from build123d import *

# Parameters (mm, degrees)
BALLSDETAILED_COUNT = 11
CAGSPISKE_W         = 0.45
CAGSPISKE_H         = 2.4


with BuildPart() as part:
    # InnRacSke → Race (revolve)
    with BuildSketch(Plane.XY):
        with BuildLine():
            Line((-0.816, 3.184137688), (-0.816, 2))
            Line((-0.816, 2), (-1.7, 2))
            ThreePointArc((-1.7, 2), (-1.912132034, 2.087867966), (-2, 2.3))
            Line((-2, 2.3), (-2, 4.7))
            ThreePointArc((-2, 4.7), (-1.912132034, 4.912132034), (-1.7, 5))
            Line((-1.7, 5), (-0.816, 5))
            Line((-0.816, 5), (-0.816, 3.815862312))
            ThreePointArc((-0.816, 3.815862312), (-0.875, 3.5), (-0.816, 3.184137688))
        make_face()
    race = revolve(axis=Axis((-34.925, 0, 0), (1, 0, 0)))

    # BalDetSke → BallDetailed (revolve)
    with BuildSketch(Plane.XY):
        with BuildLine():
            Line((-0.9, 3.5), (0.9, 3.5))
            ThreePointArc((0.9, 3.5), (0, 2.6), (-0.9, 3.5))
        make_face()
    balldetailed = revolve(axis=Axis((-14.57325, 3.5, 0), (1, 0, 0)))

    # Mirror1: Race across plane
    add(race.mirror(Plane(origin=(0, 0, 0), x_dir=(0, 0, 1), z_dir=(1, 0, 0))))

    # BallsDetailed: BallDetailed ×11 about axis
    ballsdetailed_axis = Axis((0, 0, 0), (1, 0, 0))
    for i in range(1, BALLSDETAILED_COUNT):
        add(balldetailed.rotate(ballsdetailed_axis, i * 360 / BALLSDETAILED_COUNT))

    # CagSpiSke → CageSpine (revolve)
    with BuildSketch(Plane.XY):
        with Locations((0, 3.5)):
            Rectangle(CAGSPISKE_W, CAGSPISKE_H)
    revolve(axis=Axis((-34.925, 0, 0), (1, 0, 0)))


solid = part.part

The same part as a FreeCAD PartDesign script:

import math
import FreeCAD as App
import Part
import Sketcher

V = App.Vector
Q = App.Units.Quantity


def add_polygon(sketch, points):
    """Adds a closed chain of lines whose ends are joined by coincident constraints."""
    first, n = sketch.GeometryCount, len(points)
    for a, b in zip(points, points[1:] + points[:1]):
        sketch.addGeometry(Part.LineSegment(App.Vector(*a, 0), App.Vector(*b, 0)), False)
    for i in range(n):
        sketch.addConstraint(Sketcher.Constraint("Coincident", first + i, 2, first + (i + 1) % n, 1))

doc = App.newDocument("Part")
body = doc.addObject("PartDesign::Body", "Body")

sketch1 = body.newObject("Sketcher::SketchObject", "Sketch")
sketch1.AttachmentSupport = (doc.getObject("XY_Plane"), [""])
sketch1.MapMode = "FlatFace"
sketch1.addGeometry(Part.LineSegment(V(-0.816, 2, 0), V(-0.816, 3.184138, 0)), False)
sketch1.addGeometry(Part.ArcOfCircle(Part.Circle(V(0, 3.5, 0), V(0, 0, 1), 0.875), math.radians(158.839269), math.radians(201.160731)), False)
sketch1.addGeometry(Part.LineSegment(V(-0.816, 3.815862, 0), V(-0.816, 5, 0)), False)
sketch1.addGeometry(Part.LineSegment(V(-0.816, 5, 0), V(-1.7, 5, 0)), False)
sketch1.addGeometry(Part.ArcOfCircle(Part.Circle(V(-1.7, 4.7, 0), V(0, 0, 1), 0.3), math.radians(90), math.radians(180)), False)
sketch1.addGeometry(Part.LineSegment(V(-2, 4.7, 0), V(-2, 2.3, 0)), False)
sketch1.addGeometry(Part.ArcOfCircle(Part.Circle(V(-1.7, 2.3, 0), V(0, 0, 1), 0.3), math.radians(-180), math.radians(-90)), False)
sketch1.addGeometry(Part.LineSegment(V(-1.7, 2, 0), V(-0.816, 2, 0)), False)
sketch1.addConstraint(Sketcher.Constraint("Coincident", 0, 2, 1, 2))
sketch1.addConstraint(Sketcher.Constraint("Coincident", 1, 1, 2, 1))
sketch1.addConstraint(Sketcher.Constraint("Coincident", 2, 2, 3, 1))
sketch1.addConstraint(Sketcher.Constraint("Tangent", 3, 2, 4, 1))
sketch1.addConstraint(Sketcher.Constraint("Tangent", 4, 2, 5, 1))
sketch1.addConstraint(Sketcher.Constraint("Tangent", 5, 2, 6, 1))
sketch1.addConstraint(Sketcher.Constraint("Tangent", 6, 2, 7, 1))
sketch1.addConstraint(Sketcher.Constraint("Coincident", 7, 2, 0, 1))
sketch1.addConstraint(Sketcher.Constraint("Vertical", 0))
sketch1.addConstraint(Sketcher.Constraint("Vertical", 2))
sketch1.addConstraint(Sketcher.Constraint("Horizontal", 3))
sketch1.addConstraint(Sketcher.Constraint("Vertical", 5))
sketch1.addConstraint(Sketcher.Constraint("Horizontal", 7))
sketch1.addConstraint(Sketcher.Constraint("Equal", 4, 6))
sketch1.addConstraint(Sketcher.Constraint("PointOnObject", 1, 3, -2))
sketch1.addConstraint(Sketcher.Constraint("Vertical", 0, 2, 1, 1))
sketch1.addConstraint(Sketcher.Constraint("Equal", 0, 2))
sketch1.addConstraint(Sketcher.Constraint("Radius", 4, Q("0.3 mm")))
sketch1.addConstraint(Sketcher.Constraint("DistanceY", 5, 2, 5, 1, Q("2.4 mm")))
sketch1.addConstraint(Sketcher.Constraint("DistanceY", -1, 1, 2, 2, Q("5 mm")))
sketch1.addConstraint(Sketcher.Constraint("DistanceX", 4, 2, -1, 1, Q("2 mm")))
sketch1.addConstraint(Sketcher.Constraint("Radius", 1, Q("0.875 mm")))
sketch1.addConstraint(Sketcher.Constraint("DistanceX", 3, 2, 3, 1, Q("0.884 mm")))
revolution = body.newObject("PartDesign::Revolution", "Revolution")
revolution.Profile = sketch1
revolution.ReferenceAxis = (sketch1, ["H_Axis"])
revolution.Angle = 360

sketch2 = body.newObject("Sketcher::SketchObject", "Sketch001")
sketch2.AttachmentSupport = (doc.getObject("XY_Plane"), [""])
sketch2.MapMode = "FlatFace"
sketch2.addGeometry(Part.LineSegment(V(0.9, 3.5, 0), V(-0.9, 3.5, 0)), False)
sketch2.addGeometry(Part.ArcOfCircle(Part.Circle(V(0, 3.5, 0), V(0, 0, 1), 0.9), math.radians(180), math.radians(360)), False)
sketch2.addGeometry(Part.LineSegment(V(-0.9, 3.5, 0), V(0.9, 3.5, 0)), True)
sketch2.addConstraint(Sketcher.Constraint("Coincident", 0, 1, 1, 2))
sketch2.addConstraint(Sketcher.Constraint("Coincident", 1, 1, 0, 2))
sketch2.addConstraint(Sketcher.Constraint("Horizontal", 0))
sketch2.addConstraint(Sketcher.Constraint("Horizontal", 2))
sketch2.addConstraint(Sketcher.Constraint("Coincident", 2, 1, 1, 1))
sketch2.addConstraint(Sketcher.Constraint("PointOnObject", 1, 3, -2))
sketch2.addConstraint(Sketcher.Constraint("Horizontal", 1, 3, 0, 1))
sketch2.addConstraint(Sketcher.Constraint("Equal", 0, 2))
sketch2.addConstraint(Sketcher.Constraint("Radius", 1, Q("0.9 mm")))
sketch2.addConstraint(Sketcher.Constraint("DistanceY", -1, 1, 1, 3, Q("3.5 mm")))
revolution2 = body.newObject("PartDesign::Revolution", "Revolution001")
revolution2.Profile = sketch2
revolution2.ReferenceAxis = (sketch2, ["Axis0"])
revolution2.Angle = 360
doc.recompute()

mirrored = body.newObject("PartDesign::Mirrored", "Mirrored")
mirrored.Originals = [revolution]
mirrored.MirrorPlane = (doc.getObject("YZ_Plane"), [""])
body.Tip = mirrored
doc.recompute()

polarpattern = body.newObject("PartDesign::PolarPattern", "PolarPattern")
polarpattern.Originals = [revolution2]
polarpattern.Axis = (doc.getObject("X_Axis"), [""])
polarpattern.Angle = 360
polarpattern.Occurrences = 11
body.Tip = polarpattern

sketch3 = body.newObject("Sketcher::SketchObject", "Sketch002")
sketch3.AttachmentSupport = (doc.getObject("XY_Plane"), [""])
sketch3.MapMode = "FlatFace"
add_polygon(sketch3, [(-0.225, 4.7), (-0.225, 2.3), (0.225, 2.3), (0.225, 4.7)])
sketch3.addConstraint(Sketcher.Constraint("Vertical", 0))
sketch3.addConstraint(Sketcher.Constraint("Horizontal", 1))
sketch3.addConstraint(Sketcher.Constraint("Vertical", 2))
sketch3.addConstraint(Sketcher.Constraint("Horizontal", 3))
sketch3.addConstraint(Sketcher.Constraint("DistanceY", 0, 2, 0, 1, Q("2.4 mm")))
sketch3.addConstraint(Sketcher.Constraint("DistanceX", 1, 1, 1, 2, Q("0.45 mm")))
sketch3.addConstraint(Sketcher.Constraint("DistanceY", -1, 1, 0, 2, Q("2.3 mm")))
sketch3.addConstraint(Sketcher.Constraint("DistanceX", 0, 2, -1, 1, Q("0.225 mm")))
revolution3 = body.newObject("PartDesign::Revolution", "Revolution002")
revolution3.Profile = sketch3
revolution3.ReferenceAxis = (sketch3, ["H_Axis"])
revolution3.Angle = 360

doc.recompute()
